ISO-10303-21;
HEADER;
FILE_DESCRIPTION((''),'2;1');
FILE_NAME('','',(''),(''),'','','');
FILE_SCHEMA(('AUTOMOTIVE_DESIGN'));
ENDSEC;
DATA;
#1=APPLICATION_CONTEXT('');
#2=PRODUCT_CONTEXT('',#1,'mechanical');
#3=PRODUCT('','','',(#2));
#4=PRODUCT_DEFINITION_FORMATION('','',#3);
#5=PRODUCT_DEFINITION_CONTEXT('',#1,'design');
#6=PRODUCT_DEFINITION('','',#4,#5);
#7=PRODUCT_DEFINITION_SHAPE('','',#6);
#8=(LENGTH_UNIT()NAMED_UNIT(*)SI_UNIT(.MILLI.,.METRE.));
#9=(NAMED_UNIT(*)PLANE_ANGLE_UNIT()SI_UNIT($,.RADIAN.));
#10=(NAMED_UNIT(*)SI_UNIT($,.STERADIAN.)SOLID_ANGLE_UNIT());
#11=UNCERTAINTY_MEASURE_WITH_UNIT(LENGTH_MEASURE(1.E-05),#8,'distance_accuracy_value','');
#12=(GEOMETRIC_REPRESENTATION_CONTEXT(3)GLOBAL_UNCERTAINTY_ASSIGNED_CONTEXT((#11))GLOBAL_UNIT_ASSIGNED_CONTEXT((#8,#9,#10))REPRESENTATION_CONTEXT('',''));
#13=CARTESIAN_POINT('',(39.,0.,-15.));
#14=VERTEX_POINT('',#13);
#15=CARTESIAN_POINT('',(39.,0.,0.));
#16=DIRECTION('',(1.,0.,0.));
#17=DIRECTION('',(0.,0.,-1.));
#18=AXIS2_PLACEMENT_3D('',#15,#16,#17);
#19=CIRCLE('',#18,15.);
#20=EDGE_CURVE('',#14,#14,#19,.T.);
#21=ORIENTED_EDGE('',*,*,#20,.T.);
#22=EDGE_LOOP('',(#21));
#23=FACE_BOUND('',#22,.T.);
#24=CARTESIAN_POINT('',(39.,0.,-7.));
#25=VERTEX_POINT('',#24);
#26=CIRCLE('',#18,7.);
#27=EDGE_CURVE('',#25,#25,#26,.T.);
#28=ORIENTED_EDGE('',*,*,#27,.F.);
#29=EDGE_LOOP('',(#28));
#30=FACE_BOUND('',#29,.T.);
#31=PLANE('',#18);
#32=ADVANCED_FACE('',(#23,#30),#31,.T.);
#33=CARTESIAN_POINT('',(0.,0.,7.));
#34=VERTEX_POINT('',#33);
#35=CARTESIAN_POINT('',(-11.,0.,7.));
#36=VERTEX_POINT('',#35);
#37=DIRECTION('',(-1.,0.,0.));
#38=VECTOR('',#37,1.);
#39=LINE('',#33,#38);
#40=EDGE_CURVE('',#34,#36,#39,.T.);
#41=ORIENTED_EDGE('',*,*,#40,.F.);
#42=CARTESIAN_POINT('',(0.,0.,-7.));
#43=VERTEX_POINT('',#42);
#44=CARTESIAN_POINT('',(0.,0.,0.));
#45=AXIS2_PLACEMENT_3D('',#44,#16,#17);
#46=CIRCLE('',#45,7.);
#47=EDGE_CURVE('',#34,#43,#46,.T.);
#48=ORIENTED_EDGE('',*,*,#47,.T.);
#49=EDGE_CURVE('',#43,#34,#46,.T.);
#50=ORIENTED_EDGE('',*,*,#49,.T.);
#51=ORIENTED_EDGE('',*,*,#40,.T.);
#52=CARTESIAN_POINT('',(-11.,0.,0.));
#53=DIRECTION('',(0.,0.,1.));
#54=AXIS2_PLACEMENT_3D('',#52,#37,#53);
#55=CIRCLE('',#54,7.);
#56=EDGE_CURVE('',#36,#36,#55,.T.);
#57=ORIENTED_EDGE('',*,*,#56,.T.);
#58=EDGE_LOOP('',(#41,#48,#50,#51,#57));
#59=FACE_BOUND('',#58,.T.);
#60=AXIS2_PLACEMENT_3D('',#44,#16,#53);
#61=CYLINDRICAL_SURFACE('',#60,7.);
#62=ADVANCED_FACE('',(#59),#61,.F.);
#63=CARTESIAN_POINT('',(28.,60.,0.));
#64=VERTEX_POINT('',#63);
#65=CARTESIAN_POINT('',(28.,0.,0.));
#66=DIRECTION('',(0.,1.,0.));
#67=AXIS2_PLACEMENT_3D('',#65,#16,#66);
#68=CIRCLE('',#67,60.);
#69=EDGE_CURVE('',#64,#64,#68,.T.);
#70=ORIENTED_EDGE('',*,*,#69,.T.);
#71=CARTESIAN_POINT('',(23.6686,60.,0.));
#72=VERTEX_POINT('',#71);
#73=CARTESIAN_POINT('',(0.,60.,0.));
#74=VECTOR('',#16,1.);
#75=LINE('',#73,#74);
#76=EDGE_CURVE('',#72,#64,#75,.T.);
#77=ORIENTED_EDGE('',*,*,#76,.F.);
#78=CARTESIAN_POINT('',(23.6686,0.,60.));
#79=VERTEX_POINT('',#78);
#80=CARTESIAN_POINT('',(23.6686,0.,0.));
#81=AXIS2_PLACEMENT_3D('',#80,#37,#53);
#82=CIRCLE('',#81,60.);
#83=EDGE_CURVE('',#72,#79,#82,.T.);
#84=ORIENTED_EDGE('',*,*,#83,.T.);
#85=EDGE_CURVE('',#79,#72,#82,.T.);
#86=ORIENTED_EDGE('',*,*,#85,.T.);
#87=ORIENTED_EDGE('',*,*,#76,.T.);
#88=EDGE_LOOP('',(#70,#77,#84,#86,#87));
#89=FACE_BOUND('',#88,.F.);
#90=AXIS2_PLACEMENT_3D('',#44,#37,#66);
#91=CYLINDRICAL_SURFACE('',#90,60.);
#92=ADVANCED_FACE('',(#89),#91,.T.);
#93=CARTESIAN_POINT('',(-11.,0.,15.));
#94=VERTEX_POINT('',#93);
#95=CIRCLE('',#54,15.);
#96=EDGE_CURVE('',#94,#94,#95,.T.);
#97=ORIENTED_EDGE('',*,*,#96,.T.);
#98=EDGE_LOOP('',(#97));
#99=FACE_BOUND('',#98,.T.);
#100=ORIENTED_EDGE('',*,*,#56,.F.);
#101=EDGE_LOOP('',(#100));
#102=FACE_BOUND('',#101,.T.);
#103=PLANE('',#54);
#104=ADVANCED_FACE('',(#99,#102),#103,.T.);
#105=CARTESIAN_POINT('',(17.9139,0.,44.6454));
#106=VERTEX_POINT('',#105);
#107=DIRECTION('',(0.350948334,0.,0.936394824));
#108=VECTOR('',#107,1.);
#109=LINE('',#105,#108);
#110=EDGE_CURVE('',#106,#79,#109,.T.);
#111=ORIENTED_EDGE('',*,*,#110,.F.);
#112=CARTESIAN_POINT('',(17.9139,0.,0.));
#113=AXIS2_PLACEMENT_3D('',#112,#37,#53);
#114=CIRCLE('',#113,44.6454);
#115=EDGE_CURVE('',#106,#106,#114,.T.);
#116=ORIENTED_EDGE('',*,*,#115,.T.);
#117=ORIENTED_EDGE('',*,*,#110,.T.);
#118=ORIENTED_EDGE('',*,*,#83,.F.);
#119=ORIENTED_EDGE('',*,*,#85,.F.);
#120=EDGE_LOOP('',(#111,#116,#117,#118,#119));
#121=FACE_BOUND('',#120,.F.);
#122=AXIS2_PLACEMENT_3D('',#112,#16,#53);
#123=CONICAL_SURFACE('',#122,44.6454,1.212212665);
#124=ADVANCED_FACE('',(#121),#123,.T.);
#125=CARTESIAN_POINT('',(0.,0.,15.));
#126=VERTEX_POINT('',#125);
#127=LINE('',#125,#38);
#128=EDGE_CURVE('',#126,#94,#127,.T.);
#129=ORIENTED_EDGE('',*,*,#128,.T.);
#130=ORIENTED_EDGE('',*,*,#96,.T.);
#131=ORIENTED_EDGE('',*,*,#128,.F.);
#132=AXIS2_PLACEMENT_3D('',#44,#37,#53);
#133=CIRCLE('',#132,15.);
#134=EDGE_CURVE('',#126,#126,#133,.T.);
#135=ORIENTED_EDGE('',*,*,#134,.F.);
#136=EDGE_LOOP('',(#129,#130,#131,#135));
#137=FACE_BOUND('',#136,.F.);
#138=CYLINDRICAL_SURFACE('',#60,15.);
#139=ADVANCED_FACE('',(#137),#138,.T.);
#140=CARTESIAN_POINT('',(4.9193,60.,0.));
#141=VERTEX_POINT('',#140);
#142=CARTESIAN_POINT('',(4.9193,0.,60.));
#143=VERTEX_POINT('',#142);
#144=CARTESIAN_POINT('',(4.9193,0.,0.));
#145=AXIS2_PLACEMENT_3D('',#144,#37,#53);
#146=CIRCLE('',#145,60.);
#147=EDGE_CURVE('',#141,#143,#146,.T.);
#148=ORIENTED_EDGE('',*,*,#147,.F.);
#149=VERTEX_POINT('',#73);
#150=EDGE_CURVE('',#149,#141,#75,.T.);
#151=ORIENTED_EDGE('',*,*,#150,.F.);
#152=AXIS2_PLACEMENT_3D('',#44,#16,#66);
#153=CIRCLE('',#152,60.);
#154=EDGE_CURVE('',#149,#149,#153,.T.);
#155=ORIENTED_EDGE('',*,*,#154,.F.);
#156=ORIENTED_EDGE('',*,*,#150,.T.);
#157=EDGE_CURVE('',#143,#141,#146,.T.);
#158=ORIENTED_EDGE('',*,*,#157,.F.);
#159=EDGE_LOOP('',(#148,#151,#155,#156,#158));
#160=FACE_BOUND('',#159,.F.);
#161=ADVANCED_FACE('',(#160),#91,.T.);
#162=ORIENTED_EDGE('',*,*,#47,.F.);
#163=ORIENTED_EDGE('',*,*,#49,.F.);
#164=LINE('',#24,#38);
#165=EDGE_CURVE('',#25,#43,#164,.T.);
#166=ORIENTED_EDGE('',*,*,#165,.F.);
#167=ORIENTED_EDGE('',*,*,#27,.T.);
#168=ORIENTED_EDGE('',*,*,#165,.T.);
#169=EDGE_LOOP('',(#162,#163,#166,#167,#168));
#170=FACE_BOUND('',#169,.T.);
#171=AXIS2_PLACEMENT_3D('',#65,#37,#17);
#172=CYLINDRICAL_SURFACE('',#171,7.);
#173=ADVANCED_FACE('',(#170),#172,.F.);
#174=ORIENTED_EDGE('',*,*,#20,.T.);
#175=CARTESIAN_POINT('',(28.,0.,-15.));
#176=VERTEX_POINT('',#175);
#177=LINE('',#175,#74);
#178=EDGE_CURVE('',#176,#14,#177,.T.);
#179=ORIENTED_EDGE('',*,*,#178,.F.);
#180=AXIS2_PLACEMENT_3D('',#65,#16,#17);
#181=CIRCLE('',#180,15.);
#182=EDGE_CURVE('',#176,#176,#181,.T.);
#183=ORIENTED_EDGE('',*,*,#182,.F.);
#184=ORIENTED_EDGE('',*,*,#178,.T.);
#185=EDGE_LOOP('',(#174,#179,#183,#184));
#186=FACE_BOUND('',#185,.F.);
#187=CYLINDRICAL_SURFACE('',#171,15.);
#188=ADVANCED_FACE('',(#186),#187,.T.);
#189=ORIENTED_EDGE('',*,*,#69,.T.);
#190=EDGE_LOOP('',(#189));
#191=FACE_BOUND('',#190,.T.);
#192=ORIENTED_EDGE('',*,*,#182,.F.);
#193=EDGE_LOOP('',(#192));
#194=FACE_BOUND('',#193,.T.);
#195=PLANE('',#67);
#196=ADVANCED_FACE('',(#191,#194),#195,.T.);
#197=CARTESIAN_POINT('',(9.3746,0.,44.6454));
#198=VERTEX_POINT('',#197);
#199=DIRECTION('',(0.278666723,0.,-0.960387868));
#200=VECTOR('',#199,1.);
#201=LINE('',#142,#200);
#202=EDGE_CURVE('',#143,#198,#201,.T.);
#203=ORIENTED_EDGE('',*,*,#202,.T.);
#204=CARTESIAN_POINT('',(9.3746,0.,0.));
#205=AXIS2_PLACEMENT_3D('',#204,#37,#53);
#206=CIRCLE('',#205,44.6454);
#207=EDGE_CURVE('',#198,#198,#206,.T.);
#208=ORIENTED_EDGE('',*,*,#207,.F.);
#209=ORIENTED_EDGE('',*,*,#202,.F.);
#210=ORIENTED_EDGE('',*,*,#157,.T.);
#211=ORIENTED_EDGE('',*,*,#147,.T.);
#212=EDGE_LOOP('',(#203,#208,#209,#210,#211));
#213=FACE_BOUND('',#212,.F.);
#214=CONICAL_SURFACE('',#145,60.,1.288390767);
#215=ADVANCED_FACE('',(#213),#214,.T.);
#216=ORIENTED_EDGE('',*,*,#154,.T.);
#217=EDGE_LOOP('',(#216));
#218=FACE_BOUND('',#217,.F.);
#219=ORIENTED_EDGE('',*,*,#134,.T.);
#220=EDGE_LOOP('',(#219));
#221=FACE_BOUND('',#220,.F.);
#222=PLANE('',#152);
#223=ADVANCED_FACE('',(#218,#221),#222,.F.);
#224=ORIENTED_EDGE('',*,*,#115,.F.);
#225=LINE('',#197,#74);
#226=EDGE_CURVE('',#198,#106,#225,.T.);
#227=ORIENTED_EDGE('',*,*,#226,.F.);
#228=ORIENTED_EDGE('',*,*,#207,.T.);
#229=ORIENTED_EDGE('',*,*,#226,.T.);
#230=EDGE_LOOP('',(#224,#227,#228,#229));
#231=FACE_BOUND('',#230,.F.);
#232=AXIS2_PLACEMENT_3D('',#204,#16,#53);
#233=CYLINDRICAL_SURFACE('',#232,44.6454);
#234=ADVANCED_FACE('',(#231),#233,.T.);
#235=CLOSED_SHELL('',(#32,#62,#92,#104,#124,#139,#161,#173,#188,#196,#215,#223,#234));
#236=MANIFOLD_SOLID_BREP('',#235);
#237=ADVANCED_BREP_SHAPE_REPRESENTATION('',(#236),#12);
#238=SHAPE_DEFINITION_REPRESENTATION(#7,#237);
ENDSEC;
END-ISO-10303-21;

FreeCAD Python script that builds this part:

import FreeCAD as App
import Part
import Sketcher
from FreeCAD import Vector
Q = App.Units.Quantity

doc = App.newDocument("Part")
body = doc.addObject("PartDesign::Body", "Body")

# Sketch on YZ plane
sketch1 = doc.addObject("Sketcher::SketchObject", "Sketch")
body.addObject(sketch1)
sketch1.AttachmentSupport = (doc.YZ_Plane, [""])
sketch1.MapMode = "FlatFace"
sketch1.addGeometry(Part.Circle(Vector(0, 0, 0), Vector(0, 0, 1), 60), False)
sketch1.addConstraint(Sketcher.Constraint("Coincident", 0, 3, -1, 1))
sketch1.addConstraint(Sketcher.Constraint("Diameter", 0, Q("120 mm")))
pad1 = doc.addObject("PartDesign::Pad", "Pad")
body.addObject(pad1)
pad1.Profile = sketch1
pad1.Length = 28

# Sketch on YZ plane
sketch2 = doc.addObject("Sketcher::SketchObject", "Sketch001")
body.addObject(sketch2)
sketch2.AttachmentSupport = (doc.YZ_Plane, [""])
sketch2.MapMode = "FlatFace"
sketch2.AttachmentOffset = App.Placement(Vector(0, 0, 28), App.Rotation())
sketch2.addGeometry(Part.Circle(Vector(0, 0, 0), Vector(0, 0, 1), 7), False)
sketch2.addConstraint(Sketcher.Constraint("Coincident", 0, 3, -1, 1))
sketch2.addConstraint(Sketcher.Constraint("Diameter", 0, Q("14 mm")))
pocket1 = doc.addObject("PartDesign::Pocket", "Pocket")
body.addObject(pocket1)
pocket1.Profile = sketch2
pocket1.Length = 28

# Sketch on XZ plane
sketch3 = doc.addObject("Sketcher::SketchObject", "Sketch002")
body.addObject(sketch3)
sketch3.AttachmentSupport = (doc.XZ_Plane, [""])
sketch3.MapMode = "FlatFace"
sketch3.addGeometry(Part.LineSegment(Vector(9.3746, 44.6454, 0), Vector(4.9193, 60, 0)), False)
sketch3.addGeometry(Part.LineSegment(Vector(4.9193, 60, 0), Vector(23.6686, 60, 0)), False)
sketch3.addGeometry(Part.LineSegment(Vector(23.6686, 60, 0), Vector(17.9139, 44.6454, 0)), False)
sketch3.addGeometry(Part.LineSegment(Vector(17.9139, 44.6454, 0), Vector(9.3746, 44.6454, 0)), False)
sketch3.addConstraint(Sketcher.Constraint("Coincident", 0, 2, 1, 1))
sketch3.addConstraint(Sketcher.Constraint("Coincident", 1, 2, 2, 1))
sketch3.addConstraint(Sketcher.Constraint("Coincident", 2, 2, 3, 1))
sketch3.addConstraint(Sketcher.Constraint("Coincident", 3, 2, 0, 1))
sketch3.addConstraint(Sketcher.Constraint("Horizontal", 1))
sketch3.addConstraint(Sketcher.Constraint("Horizontal", 3))
sketch3.addConstraint(Sketcher.Constraint("DistanceY", -1, 1, 0, 2, Q("60 mm")))
sketch3.addConstraint(Sketcher.Constraint("Angle", 0, Q("106.1806 deg")))
sketch3.addConstraint(Sketcher.Constraint("Distance", 0, Q("15.988 mm")))
sketch3.addConstraint(Sketcher.Constraint("DistanceX", 1, 1, 1, 2, Q("18.7493 mm")))
sketch3.addConstraint(Sketcher.Constraint("DistanceX", 3, 2, 3, 1, Q("8.5393 mm")))
sketch3.addConstraint(Sketcher.Constraint("DistanceX", -1, 1, 2, 2, Q("17.914 mm")))
groove = doc.addObject("PartDesign::Groove", "Groove")
body.addObject(groove)
groove.Profile = sketch3
groove.ReferenceAxis = (sketch3, ["H_Axis"])
groove.Angle = 360

# Sketch on YZ plane
sketch4 = doc.addObject("Sketcher::SketchObject", "Sketch003")
body.addObject(sketch4)
sketch4.AttachmentSupport = (doc.YZ_Plane, [""])
sketch4.MapMode = "FlatFace"
sketch4.AttachmentOffset = App.Placement(Vector(0, 0, 28), App.Rotation())
sketch4.addGeometry(Part.Circle(Vector(0, 0, 0), Vector(0, 0, 1), 15), False)
sketch4.addGeometry(Part.Circle(Vector(0, 0, 0), Vector(0, 0, 1), 7), False)
sketch4.addConstraint(Sketcher.Constraint("Coincident", 0, 3, -1, 1))
sketch4.addConstraint(Sketcher.Constraint("Coincident", 1, 3, -1, 1))
sketch4.addConstraint(Sketcher.Constraint("Diameter", 0, Q("30 mm")))
sketch4.addConstraint(Sketcher.Constraint("Diameter", 1, Q("14 mm")))
pad2 = doc.addObject("PartDesign::Pad", "Pad001")
body.addObject(pad2)
pad2.Profile = sketch4
pad2.Length = 11

# Sketch on YZ plane
sketch5 = doc.addObject("Sketcher::SketchObject", "Sketch004")
body.addObject(sketch5)
sketch5.AttachmentSupport = (doc.YZ_Plane, [""])
sketch5.MapMode = "FlatFace"
sketch5.addGeometry(Part.Circle(Vector(0, 0, 0), Vector(0, 0, 1), 15), False)
sketch5.addGeometry(Part.Circle(Vector(0, 0, 0), Vector(0, 0, 1), 7), False)
sketch5.addConstraint(Sketcher.Constraint("Coincident", 0, 3, -1, 1))
sketch5.addConstraint(Sketcher.Constraint("Coincident", 1, 3, -1, 1))
sketch5.addConstraint(Sketcher.Constraint("Diameter", 0, Q("30 mm")))
sketch5.addConstraint(Sketcher.Constraint("Diameter", 1, Q("14 mm")))
pad3 = doc.addObject("PartDesign::Pad", "Pad002")
body.addObject(pad3)
pad3.Profile = sketch5
pad3.Length = 11
pad3.Reversed = True

doc.recompute()
